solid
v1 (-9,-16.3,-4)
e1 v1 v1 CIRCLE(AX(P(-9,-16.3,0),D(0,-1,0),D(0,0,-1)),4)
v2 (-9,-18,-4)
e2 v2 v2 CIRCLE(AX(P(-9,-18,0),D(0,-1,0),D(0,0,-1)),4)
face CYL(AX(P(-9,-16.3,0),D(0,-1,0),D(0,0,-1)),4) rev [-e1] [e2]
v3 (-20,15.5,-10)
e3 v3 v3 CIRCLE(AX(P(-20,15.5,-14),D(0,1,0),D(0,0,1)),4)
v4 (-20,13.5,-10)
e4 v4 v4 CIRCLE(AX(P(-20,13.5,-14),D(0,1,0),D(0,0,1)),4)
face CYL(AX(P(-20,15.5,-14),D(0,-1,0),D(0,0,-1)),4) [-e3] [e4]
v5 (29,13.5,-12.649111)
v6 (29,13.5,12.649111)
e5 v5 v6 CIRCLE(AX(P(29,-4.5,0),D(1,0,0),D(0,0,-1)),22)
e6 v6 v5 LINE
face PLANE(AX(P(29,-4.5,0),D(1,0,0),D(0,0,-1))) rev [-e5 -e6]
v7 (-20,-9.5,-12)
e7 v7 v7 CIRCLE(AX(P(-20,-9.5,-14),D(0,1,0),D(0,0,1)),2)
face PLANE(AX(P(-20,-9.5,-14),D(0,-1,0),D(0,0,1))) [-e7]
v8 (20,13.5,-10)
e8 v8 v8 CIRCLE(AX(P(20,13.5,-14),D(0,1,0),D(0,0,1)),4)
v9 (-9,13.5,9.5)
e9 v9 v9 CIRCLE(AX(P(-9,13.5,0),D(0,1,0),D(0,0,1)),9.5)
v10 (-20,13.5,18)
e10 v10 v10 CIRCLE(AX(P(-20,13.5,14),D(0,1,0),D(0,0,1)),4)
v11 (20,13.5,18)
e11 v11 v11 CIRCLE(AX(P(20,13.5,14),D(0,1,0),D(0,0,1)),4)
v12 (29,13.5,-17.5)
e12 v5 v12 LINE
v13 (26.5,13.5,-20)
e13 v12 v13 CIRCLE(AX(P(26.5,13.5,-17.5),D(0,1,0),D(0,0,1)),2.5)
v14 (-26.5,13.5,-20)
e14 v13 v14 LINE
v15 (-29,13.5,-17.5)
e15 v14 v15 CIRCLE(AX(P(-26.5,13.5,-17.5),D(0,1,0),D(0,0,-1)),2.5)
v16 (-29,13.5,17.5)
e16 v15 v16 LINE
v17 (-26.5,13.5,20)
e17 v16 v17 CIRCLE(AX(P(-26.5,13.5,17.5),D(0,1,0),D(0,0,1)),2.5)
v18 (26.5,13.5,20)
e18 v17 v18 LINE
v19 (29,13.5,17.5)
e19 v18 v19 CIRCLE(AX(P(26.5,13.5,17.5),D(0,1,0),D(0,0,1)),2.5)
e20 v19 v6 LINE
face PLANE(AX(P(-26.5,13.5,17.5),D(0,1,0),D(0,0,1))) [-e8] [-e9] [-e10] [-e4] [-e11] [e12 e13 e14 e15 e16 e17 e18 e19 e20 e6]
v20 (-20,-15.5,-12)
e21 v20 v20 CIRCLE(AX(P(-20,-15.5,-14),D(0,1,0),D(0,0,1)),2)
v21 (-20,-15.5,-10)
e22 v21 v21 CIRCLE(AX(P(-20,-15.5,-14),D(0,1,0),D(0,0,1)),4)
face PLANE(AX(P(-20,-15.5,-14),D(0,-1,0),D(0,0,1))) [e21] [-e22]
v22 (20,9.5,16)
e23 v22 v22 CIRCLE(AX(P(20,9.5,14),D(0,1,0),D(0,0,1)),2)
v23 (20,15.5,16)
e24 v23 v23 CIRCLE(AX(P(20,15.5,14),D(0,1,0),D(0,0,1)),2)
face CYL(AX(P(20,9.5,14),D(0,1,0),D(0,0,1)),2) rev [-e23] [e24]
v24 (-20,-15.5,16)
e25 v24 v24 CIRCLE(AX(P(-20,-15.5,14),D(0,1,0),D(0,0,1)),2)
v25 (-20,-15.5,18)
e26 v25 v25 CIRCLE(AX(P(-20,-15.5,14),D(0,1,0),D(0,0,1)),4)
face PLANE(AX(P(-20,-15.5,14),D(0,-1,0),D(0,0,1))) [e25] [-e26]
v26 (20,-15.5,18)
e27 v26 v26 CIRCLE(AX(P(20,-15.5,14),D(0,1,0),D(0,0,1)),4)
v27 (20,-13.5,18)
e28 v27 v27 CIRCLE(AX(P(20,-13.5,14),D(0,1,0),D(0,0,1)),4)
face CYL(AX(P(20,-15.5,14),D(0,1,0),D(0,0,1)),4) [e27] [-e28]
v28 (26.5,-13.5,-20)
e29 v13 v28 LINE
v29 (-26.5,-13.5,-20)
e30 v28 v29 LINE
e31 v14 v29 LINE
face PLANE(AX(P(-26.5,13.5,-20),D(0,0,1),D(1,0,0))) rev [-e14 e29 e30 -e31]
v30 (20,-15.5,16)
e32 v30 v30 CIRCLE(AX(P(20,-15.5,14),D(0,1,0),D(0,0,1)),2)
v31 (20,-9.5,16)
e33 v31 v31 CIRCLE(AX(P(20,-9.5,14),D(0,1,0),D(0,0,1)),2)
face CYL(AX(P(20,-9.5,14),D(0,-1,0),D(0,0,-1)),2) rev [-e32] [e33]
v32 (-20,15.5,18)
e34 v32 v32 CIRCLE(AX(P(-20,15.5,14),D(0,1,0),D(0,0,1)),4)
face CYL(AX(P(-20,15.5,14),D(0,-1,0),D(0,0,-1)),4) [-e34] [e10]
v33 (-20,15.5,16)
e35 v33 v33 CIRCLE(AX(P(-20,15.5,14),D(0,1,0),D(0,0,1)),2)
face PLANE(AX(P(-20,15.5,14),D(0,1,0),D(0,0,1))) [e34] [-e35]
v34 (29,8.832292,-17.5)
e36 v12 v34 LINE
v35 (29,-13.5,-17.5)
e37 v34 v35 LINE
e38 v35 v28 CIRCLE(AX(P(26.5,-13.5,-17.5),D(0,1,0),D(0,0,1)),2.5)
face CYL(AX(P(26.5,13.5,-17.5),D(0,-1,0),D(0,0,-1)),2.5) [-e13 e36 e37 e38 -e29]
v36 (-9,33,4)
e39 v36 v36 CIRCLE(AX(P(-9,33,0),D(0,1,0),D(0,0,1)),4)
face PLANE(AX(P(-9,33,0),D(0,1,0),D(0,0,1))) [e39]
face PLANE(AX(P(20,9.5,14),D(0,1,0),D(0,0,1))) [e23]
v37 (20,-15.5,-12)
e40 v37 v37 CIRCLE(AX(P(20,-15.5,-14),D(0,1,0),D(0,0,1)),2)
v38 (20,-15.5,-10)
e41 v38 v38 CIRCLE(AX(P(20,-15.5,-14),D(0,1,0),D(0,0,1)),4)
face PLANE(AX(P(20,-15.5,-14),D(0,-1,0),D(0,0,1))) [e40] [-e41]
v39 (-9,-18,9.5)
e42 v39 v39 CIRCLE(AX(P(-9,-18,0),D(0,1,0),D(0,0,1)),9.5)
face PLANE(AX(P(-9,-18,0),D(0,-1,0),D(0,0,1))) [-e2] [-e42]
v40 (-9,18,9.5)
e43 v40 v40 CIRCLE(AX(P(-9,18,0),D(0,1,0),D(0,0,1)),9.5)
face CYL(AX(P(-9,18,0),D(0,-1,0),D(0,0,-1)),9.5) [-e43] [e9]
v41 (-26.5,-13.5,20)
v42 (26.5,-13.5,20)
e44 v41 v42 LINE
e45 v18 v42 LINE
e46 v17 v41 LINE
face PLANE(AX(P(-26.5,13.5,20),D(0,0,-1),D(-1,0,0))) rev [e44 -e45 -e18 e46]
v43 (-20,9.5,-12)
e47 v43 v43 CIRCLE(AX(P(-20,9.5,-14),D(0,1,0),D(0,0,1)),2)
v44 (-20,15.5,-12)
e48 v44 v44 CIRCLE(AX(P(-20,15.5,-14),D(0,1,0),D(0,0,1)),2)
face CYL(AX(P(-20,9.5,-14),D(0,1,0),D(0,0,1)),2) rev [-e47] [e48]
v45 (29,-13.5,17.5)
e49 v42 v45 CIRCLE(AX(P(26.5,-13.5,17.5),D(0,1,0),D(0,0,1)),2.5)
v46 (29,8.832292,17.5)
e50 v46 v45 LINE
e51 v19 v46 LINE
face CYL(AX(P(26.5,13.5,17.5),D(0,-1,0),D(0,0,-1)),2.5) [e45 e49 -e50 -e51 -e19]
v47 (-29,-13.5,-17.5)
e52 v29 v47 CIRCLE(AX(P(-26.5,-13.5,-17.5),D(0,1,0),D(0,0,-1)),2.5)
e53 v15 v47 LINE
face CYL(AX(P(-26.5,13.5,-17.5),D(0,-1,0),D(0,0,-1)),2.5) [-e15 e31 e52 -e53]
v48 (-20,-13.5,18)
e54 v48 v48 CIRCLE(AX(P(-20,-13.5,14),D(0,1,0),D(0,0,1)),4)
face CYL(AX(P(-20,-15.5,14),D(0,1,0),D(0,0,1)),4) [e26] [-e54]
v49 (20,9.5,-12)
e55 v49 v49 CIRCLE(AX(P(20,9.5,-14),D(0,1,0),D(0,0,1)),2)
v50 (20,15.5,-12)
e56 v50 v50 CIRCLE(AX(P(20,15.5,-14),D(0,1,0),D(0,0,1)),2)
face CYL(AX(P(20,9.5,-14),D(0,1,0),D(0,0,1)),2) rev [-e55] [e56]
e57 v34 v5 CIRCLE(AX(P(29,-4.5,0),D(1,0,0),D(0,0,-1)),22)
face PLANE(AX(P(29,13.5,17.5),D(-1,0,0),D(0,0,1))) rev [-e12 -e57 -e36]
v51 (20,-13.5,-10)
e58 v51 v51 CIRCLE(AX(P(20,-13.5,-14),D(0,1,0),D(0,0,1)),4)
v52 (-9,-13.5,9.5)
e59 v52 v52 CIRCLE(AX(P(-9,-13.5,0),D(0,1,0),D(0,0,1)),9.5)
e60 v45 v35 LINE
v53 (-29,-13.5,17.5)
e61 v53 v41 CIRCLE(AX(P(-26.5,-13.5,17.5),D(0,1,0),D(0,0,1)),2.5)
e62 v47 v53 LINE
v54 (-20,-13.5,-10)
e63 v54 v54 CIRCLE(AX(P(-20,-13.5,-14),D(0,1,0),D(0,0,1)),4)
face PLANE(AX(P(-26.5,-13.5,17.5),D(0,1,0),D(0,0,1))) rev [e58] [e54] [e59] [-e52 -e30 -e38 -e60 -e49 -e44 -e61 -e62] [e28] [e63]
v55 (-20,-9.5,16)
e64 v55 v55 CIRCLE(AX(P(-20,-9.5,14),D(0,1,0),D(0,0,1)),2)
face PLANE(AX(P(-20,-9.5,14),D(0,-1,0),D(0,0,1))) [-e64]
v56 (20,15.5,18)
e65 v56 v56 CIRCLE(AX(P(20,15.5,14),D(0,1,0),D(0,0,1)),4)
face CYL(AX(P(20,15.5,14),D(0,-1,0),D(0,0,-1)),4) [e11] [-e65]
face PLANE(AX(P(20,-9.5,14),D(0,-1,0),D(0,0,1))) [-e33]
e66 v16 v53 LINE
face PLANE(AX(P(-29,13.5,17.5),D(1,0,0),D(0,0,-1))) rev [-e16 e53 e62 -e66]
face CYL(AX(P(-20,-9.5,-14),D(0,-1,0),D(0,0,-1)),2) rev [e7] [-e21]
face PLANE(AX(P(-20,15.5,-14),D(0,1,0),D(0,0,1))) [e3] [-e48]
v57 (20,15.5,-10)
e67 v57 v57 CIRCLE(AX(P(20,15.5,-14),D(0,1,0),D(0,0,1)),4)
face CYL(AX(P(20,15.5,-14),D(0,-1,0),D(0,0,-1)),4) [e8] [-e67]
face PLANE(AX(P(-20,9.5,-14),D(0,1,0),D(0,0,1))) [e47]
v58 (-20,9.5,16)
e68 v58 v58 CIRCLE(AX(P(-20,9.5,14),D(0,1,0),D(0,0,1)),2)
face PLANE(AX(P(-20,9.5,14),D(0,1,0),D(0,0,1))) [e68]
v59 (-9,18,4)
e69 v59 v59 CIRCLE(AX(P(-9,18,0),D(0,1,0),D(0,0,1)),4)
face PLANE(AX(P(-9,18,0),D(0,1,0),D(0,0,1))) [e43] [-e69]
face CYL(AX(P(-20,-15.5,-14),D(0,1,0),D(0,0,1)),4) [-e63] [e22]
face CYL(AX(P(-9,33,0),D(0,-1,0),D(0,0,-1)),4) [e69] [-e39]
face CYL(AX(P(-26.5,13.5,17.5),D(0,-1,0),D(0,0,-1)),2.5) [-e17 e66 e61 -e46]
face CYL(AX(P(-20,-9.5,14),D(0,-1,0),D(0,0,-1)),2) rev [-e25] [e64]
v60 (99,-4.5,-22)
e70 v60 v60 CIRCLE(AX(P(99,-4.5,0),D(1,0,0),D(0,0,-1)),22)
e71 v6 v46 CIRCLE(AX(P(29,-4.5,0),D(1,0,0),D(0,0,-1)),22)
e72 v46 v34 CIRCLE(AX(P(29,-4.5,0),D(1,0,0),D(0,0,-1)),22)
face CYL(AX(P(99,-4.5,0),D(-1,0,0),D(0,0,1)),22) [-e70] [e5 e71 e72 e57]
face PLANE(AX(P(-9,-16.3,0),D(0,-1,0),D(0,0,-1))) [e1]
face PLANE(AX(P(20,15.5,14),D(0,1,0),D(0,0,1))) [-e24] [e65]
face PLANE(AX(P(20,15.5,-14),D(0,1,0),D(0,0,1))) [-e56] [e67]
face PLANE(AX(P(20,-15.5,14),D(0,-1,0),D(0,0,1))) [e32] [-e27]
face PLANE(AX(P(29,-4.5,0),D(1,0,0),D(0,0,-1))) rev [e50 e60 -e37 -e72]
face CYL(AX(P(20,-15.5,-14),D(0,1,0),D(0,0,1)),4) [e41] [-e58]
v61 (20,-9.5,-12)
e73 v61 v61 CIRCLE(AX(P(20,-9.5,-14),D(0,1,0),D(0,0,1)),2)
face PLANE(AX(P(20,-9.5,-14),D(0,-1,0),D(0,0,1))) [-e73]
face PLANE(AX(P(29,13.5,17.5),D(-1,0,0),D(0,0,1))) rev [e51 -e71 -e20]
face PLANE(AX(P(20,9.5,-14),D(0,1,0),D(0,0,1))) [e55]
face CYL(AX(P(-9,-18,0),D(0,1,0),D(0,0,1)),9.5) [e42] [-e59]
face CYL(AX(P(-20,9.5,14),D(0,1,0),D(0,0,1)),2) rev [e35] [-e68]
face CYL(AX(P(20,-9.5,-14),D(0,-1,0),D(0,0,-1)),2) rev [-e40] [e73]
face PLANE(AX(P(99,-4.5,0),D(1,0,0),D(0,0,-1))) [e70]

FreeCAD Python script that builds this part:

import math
import FreeCAD as App
import Part
import Sketcher
from FreeCAD import Vector
Q = App.Units.Quantity

doc = App.newDocument("Part")
body = doc.addObject("PartDesign::Body", "Body")

# Sketch on XZ plane
sketch1 = doc.addObject("Sketcher::SketchObject", "Sketch")
body.addObject(sketch1)
sketch1.AttachmentSupport = (doc.XZ_Plane, [""])
sketch1.MapMode = "FlatFace"
sketch1.addGeometry([
    Part.LineSegment(Vector(-26.5, 20, 0), Vector(26.5, 20, 0)),  # 0
    Part.ArcOfCircle(Part.Circle(Vector(26.5, 17.5, 0), Vector(0, 0, 1), 2.5), math.radians(0), math.radians(90)),  # 1
    Part.LineSegment(Vector(29, 17.5, 0), Vector(29, -17.5, 0)),  # 2
    Part.ArcOfCircle(Part.Circle(Vector(26.5, -17.5, 0), Vector(0, 0, 1), 2.5), math.radians(-90), math.radians(0)),  # 3
    Part.LineSegment(Vector(26.5, -20, 0), Vector(-26.5, -20, 0)),  # 4
    Part.ArcOfCircle(Part.Circle(Vector(-26.5, -17.5, 0), Vector(0, 0, 1), 2.5), math.radians(180), math.radians(270)),  # 5
    Part.LineSegment(Vector(-29, -17.5, 0), Vector(-29, 17.5, 0)),  # 6
    Part.ArcOfCircle(Part.Circle(Vector(-26.5, 17.5, 0), Vector(0, 0, 1), 2.5), math.radians(90), math.radians(180)),  # 7
], False)
sketch1.addConstraint([
    Sketcher.Constraint("Tangent", 0, 2, 1, 2),
    Sketcher.Constraint("Tangent", 1, 1, 2, 1),
    Sketcher.Constraint("Tangent", 2, 2, 3, 2),
    Sketcher.Constraint("Tangent", 3, 1, 4, 1),
    Sketcher.Constraint("Tangent", 4, 2, 5, 2),
    Sketcher.Constraint("Tangent", 5, 1, 6, 1),
    Sketcher.Constraint("Tangent", 6, 2, 7, 2),
    Sketcher.Constraint("Tangent", 7, 1, 0, 1),
    Sketcher.Constraint("Horizontal", 0),
    Sketcher.Constraint("Vertical", 2),
    Sketcher.Constraint("Horizontal", 4),
    Sketcher.Constraint("Vertical", 6),
    Sketcher.Constraint("Equal", 1, 3),
    Sketcher.Constraint("Equal", 3, 5),
    Sketcher.Constraint("Equal", 5, 7),
    Sketcher.Constraint("Symmetric", 1, 3, 5, 3, -1, 1),
    Sketcher.Constraint("Radius", 1, Q("2.5 mm")),
    Sketcher.Constraint("DistanceX", 0, 1, 0, 2, Q("53 mm")),
    Sketcher.Constraint("DistanceY", 2, 2, 2, 1, Q("35 mm")),
])
pad1 = doc.addObject("PartDesign::Pad", "Pad")
body.addObject(pad1)
pad1.Profile = sketch1
pad1.Length = 27
pad1.Midplane = True

# Sketch on XZ plane
sketch2 = doc.addObject("Sketcher::SketchObject", "Sketch001")
body.addObject(sketch2)
sketch2.AttachmentSupport = (doc.XZ_Plane, [""])
sketch2.MapMode = "FlatFace"
sketch2.AttachmentOffset = App.Placement(Vector(0, 0, -13.5), App.Rotation())
sketch2.addGeometry([
    Part.Circle(Vector(-20, -14, 0), Vector(0, 0, 1), 4),
    Part.Circle(Vector(-20, 14, 0), Vector(0, 0, 1), 4),
    Part.Circle(Vector(20, 14, 0), Vector(0, 0, 1), 4),
    Part.Circle(Vector(20, -14, 0), Vector(0, 0, 1), 4),
], False)
sketch2.addConstraint([
    Sketcher.Constraint("Equal", 0, 1),
    Sketcher.Constraint("Equal", 1, 2),
    Sketcher.Constraint("Equal", 2, 3),
    Sketcher.Constraint("Symmetric", 0, 3, 2, 3, -1, 1),
    Sketcher.Constraint("Symmetric", 1, 3, 3, 3, -1, 1),
    Sketcher.Constraint("Symmetric", 1, 3, 2, 3, -2),
    Sketcher.Constraint("Diameter", 0, Q("8 mm")),
    Sketcher.Constraint("DistanceX", 0, 3, -1, 1, Q("20 mm")),
    Sketcher.Constraint("DistanceY", 0, 3, -1, 1, Q("14 mm")),
])
pad2 = doc.addObject("PartDesign::Pad", "Pad001")
body.addObject(pad2)
pad2.Profile = sketch2
pad2.Length = 2
pad2.Reversed = True

# Sketch on XZ plane
sketch3 = doc.addObject("Sketcher::SketchObject", "Sketch002")
body.addObject(sketch3)
sketch3.AttachmentSupport = (doc.XZ_Plane, [""])
sketch3.MapMode = "FlatFace"
sketch3.AttachmentOffset = App.Placement(Vector(0, 0, -15.5), App.Rotation())
sketch3.addGeometry([
    Part.Circle(Vector(-20, -14, 0), Vector(0, 0, 1), 2),
    Part.Circle(Vector(20, -14, 0), Vector(0, 0, 1), 2),
    Part.Circle(Vector(20, 14, 0), Vector(0, 0, 1), 2),
    Part.Circle(Vector(-20, 14, 0), Vector(0, 0, 1), 2),
], False)
sketch3.addConstraint([
    Sketcher.Constraint("Equal", 0, 1),
    Sketcher.Constraint("Equal", 1, 2),
    Sketcher.Constraint("Equal", 2, 3),
    Sketcher.Constraint("Symmetric", 0, 3, 2, 3, -1, 1),
    Sketcher.Constraint("Symmetric", 1, 3, 3, 3, -1, 1),
    Sketcher.Constraint("Symmetric", 0, 3, 1, 3, -2),
    Sketcher.Constraint("Diameter", 0, Q("4 mm")),
    Sketcher.Constraint("DistanceX", 0, 3, -1, 1, Q("20 mm")),
    Sketcher.Constraint("DistanceY", 0, 3, -1, 1, Q("14 mm")),
])
pocket1 = doc.addObject("PartDesign::Pocket", "Pocket")
body.addObject(pocket1)
pocket1.Profile = sketch3
pocket1.Length = 6
pocket1.Reversed = True

# Sketch on XZ plane
sketch4 = doc.addObject("Sketcher::SketchObject", "Sketch003")
body.addObject(sketch4)
sketch4.AttachmentSupport = (doc.XZ_Plane, [""])
sketch4.MapMode = "FlatFace"
sketch4.AttachmentOffset = App.Placement(Vector(0, 0, -13.5), App.Rotation())
sketch4.addGeometry(Part.Circle(Vector(-9, 0, 0), Vector(0, 0, 1), 10), False)
sketch4.addConstraint([
    Sketcher.Constraint("PointOnObject", 0, 3, -1),
    Sketcher.Constraint("Diameter", 0, Q("19 mm")),
    Sketcher.Constraint("DistanceX", 0, 3, -1, 1, Q("9 mm")),
])
pad3 = doc.addObject("PartDesign::Pad", "Pad002")
body.addObject(pad3)
pad3.Profile = sketch4
pad3.Length = 4.5
pad3.Reversed = True

# Sketch on XZ plane
sketch5 = doc.addObject("Sketcher::SketchObject", "Sketch004")
body.addObject(sketch5)
sketch5.AttachmentSupport = (doc.XZ_Plane, [""])
sketch5.MapMode = "FlatFace"
sketch5.AttachmentOffset = App.Placement(Vector(0, 0, -18), App.Rotation())
sketch5.addGeometry(Part.Circle(Vector(-9, 0, 0), Vector(0, 0, 1), 4), False)
sketch5.addConstraint([
    Sketcher.Constraint("PointOnObject", 0, 3, -1),
    Sketcher.Constraint("Diameter", 0, Q("8 mm")),
    Sketcher.Constraint("DistanceX", 0, 3, -1, 1, Q("9 mm")),
])
pad4 = doc.addObject("PartDesign::Pad", "Pad003")
body.addObject(pad4)
pad4.Profile = sketch5
pad4.Length = 15
pad4.Reversed = True

# Sketch on YZ plane
sketch6 = doc.addObject("Sketcher::SketchObject", "Sketch005")
body.addObject(sketch6)
sketch6.AttachmentSupport = (doc.YZ_Plane, [""])
sketch6.MapMode = "FlatFace"
sketch6.AttachmentOffset = App.Placement(Vector(0, 0, 29), App.Rotation())
sketch6.addGeometry(Part.Circle(Vector(-4, 0, 0), Vector(0, 0, 1), 22), False)
sketch6.addConstraint([
    Sketcher.Constraint("PointOnObject", 0, 3, -1),
    Sketcher.Constraint("Diameter", 0, Q("44 mm")),
    Sketcher.Constraint("DistanceX", 0, 3, -1, 1, Q("4.5 mm")),
])
pad5 = doc.addObject("PartDesign::Pad", "Pad004")
body.addObject(pad5)
pad5.Profile = sketch6
pad5.Length = 70
doc.recompute()

mirrored = doc.addObject("PartDesign::Mirrored", "Mirrored")
body.addObject(mirrored)
mirrored.Originals = [pad2, pocket1, pad3]
mirrored.MirrorPlane = (doc.XZ_Plane, [""])
body.Tip = mirrored

# Sketch on XZ plane
sketch7 = doc.addObject("Sketcher::SketchObject", "Sketch006")
body.addObject(sketch7)
sketch7.AttachmentSupport = (doc.XZ_Plane, [""])
sketch7.MapMode = "FlatFace"
sketch7.AttachmentOffset = App.Placement(Vector(0, 0, 18), App.Rotation())
sketch7.addGeometry(Part.Circle(Vector(-9, 0, 0), Vector(0, 0, 1), 4), False)
sketch7.addConstraint([
    Sketcher.Constraint("PointOnObject", 0, 3, -1),
    Sketcher.Constraint("Diameter", 0, Q("8 mm")),
    Sketcher.Constraint("DistanceX", 0, 3, -1, 1, Q("9 mm")),
])
pocket2 = doc.addObject("PartDesign::Pocket", "Pocket001")
body.addObject(pocket2)
pocket2.Profile = sketch7
pocket2.Length = 1.7

doc.recompute()
